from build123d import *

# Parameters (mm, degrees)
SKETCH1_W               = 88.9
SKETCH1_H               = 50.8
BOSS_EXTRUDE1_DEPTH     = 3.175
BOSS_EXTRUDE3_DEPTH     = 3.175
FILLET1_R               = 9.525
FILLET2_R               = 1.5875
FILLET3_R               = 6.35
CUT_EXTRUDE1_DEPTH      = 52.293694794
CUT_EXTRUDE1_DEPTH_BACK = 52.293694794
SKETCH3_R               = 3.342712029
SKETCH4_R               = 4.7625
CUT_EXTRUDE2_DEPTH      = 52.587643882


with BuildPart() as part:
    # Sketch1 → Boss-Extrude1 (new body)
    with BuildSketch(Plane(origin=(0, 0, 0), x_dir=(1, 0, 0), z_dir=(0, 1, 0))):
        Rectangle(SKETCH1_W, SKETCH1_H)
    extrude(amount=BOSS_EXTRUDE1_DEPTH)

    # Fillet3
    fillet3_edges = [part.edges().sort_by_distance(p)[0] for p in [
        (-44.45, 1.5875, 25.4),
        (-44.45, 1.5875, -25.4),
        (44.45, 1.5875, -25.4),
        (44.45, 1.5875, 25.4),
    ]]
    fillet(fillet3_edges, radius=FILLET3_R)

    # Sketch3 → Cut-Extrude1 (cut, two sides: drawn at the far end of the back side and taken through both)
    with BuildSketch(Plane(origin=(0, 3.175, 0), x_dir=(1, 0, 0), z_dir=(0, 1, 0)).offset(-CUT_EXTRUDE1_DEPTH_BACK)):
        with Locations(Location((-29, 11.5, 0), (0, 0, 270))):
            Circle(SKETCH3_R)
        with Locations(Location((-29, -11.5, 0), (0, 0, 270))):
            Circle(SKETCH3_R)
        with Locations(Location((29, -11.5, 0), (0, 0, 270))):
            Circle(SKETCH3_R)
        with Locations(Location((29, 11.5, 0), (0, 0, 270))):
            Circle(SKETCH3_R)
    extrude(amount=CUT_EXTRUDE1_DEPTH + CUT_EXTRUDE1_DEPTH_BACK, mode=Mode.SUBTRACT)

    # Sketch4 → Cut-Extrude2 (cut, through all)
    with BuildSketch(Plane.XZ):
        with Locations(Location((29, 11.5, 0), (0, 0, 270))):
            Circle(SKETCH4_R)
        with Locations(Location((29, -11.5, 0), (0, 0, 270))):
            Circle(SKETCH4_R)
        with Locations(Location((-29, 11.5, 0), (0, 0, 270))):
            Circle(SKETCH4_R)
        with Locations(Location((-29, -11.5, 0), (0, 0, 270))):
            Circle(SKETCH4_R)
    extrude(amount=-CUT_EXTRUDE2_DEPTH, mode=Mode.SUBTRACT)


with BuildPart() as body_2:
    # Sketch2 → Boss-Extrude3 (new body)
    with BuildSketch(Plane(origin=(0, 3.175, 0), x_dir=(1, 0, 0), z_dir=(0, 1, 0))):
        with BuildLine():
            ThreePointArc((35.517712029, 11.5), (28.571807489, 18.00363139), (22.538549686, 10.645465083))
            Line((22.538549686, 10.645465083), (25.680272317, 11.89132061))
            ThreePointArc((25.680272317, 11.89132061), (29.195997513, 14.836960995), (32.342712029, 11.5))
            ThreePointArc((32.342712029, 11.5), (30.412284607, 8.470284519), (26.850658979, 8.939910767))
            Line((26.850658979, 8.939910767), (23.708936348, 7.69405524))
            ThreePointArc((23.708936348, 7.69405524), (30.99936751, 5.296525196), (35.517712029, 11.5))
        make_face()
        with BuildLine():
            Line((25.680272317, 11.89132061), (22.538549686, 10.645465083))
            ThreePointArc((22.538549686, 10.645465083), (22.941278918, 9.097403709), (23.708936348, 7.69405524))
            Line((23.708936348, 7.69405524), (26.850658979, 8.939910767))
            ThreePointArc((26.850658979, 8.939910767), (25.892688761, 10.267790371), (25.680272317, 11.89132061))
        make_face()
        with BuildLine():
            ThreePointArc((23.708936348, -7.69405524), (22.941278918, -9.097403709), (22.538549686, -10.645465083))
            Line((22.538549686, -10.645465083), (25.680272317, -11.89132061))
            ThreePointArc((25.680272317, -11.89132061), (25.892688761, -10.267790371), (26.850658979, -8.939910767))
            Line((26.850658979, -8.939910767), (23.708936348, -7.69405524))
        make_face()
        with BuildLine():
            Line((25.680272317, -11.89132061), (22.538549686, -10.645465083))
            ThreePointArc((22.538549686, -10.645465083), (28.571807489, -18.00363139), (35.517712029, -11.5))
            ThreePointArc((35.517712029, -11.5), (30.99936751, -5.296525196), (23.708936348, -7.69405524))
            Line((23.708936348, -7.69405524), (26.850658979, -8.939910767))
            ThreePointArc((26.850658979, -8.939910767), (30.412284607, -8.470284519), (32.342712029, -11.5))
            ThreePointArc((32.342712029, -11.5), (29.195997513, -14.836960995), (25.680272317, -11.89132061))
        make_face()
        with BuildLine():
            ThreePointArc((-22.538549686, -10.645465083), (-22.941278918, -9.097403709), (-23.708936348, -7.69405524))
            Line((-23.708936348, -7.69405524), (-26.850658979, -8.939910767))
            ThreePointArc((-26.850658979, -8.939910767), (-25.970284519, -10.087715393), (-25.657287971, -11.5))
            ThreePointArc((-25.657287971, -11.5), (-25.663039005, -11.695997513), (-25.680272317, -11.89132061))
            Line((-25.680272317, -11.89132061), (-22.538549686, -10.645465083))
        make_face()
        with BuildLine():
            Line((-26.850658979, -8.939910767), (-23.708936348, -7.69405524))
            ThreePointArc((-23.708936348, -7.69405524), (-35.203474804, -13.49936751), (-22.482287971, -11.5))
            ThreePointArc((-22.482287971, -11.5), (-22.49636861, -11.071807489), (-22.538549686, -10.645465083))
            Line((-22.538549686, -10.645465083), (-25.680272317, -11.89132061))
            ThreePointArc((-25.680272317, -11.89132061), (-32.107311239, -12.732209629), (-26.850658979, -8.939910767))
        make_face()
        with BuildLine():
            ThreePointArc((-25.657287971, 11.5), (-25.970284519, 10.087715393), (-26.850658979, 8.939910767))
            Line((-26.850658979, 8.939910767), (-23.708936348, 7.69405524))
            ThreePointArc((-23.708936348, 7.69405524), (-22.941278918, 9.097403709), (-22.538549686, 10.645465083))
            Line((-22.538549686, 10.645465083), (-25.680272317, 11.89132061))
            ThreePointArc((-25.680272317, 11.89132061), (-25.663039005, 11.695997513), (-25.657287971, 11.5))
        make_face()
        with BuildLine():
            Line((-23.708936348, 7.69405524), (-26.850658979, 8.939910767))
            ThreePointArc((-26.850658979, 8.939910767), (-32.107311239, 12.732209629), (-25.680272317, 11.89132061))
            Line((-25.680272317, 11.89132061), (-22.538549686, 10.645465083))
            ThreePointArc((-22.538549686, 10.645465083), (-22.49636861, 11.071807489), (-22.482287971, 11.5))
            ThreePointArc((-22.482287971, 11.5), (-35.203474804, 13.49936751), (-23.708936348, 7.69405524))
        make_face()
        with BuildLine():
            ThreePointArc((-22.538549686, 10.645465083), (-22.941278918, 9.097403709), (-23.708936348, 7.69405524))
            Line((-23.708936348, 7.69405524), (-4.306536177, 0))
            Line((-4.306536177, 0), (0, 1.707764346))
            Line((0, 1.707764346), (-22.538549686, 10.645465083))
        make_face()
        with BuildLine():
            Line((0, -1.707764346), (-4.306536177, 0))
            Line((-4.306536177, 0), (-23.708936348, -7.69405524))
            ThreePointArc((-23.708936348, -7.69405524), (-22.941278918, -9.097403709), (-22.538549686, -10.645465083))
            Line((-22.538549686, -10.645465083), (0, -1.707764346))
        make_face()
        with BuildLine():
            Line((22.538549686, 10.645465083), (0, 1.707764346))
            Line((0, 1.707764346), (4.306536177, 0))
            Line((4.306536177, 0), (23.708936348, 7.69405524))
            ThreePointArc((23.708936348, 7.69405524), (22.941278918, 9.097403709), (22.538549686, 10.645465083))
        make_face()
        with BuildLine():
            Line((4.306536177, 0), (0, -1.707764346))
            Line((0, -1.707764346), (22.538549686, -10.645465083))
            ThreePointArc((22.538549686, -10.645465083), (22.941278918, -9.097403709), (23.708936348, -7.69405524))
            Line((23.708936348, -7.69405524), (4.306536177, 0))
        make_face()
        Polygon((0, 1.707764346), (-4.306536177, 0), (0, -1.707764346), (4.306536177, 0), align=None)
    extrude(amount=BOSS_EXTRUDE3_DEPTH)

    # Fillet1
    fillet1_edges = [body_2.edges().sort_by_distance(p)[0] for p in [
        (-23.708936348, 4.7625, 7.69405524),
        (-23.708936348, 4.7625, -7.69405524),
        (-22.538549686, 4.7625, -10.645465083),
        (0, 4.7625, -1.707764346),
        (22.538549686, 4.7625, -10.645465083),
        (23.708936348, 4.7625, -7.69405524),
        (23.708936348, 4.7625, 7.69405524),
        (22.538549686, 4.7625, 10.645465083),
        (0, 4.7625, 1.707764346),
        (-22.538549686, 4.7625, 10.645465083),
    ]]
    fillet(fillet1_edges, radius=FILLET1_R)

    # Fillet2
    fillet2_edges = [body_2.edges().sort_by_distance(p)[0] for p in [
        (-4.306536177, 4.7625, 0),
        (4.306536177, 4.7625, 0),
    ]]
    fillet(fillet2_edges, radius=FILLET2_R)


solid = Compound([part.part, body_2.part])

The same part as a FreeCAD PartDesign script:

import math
import FreeCAD as App
import Part
import Sketcher
Q = App.Units.Quantity


def edges_at(feature, points):
    """Names of the edges that pass closest to the given points."""
    edges = feature.Shape.Edges
    near = lambda p: min(range(len(edges)), key=lambda i: edges[i].distToShape(Part.Vertex(*p))[0])
    return sorted({f"Edge{near(p) + 1}" for p in points})

doc = App.newDocument("Part")
body = doc.addObject("PartDesign::Body", "Body")

sketch1 = body.newObject("Sketcher::SketchObject", "Sketch")
sketch1.AttachmentSupport = (doc.getObject("XZ_Plane"), [""])
sketch1.MapMode = "FlatFace"
sketch1.addGeometry([
    Part.LineSegment(App.Vector(-44.45, -25.4, 0), App.Vector(-44.45, 25.4, 0)),
    Part.LineSegment(App.Vector(-44.45, 25.4, 0), App.Vector(44.45, 25.4, 0)),
    Part.LineSegment(App.Vector(44.45, 25.4, 0), App.Vector(44.45, -25.4, 0)),
    Part.LineSegment(App.Vector(44.45, -25.4, 0), App.Vector(-44.45, -25.4, 0)),
], False)
sketch1.addConstraint([
    Sketcher.Constraint("Coincident", 0, 2, 1, 1),
    Sketcher.Constraint("Coincident", 1, 2, 2, 1),
    Sketcher.Constraint("Coincident", 2, 2, 3, 1),
    Sketcher.Constraint("Coincident", 3, 2, 0, 1),
    Sketcher.Constraint("Vertical", 0),
    Sketcher.Constraint("Horizontal", 1),
    Sketcher.Constraint("Vertical", 2),
    Sketcher.Constraint("Horizontal", 3),
    Sketcher.Constraint("Symmetric", 0, 2, 2, 2, -1, 1),
    Sketcher.Constraint("DistanceY", 0, 1, 0, 2, Q("2 in")),
    Sketcher.Constraint("DistanceX", 1, 1, 1, 2, Q("3.5 in")),
])
pad1 = body.newObject("PartDesign::Pad", "Pad")
pad1.Profile = sketch1
pad1.Length = Q("0.125 in")
pad1.Reversed = True
doc.recompute()

fillet = body.newObject("PartDesign::Fillet", "Fillet")
fillet.Base = (pad1, edges_at(pad1, [
    (-44.45, 1.587, 25.4),
    (-44.45, 1.587, -25.4),
    (44.45, 1.587, -25.4),
    (44.45, 1.587, 25.4),
]))
fillet.Radius = Q("0.25 in")

sketch2 = body.newObject("Sketcher::SketchObject", "Sketch001")
sketch2.AttachmentSupport = (doc.getObject("XZ_Plane"), [""])
sketch2.MapMode = "FlatFace"
sketch2.AttachmentOffset = App.Placement(App.Vector(0, 0, -0.125 * 25.4), App.Rotation())
sketch2.addGeometry([
    Part.Circle(App.Vector(-29, -11.5, 0), App.Vector(0, 0, 1), 3.342712),
    Part.Circle(App.Vector(-29, 11.5, 0), App.Vector(0, 0, 1), 3.342712),
    Part.Circle(App.Vector(29, 11.5, 0), App.Vector(0, 0, 1), 3.342712),
    Part.Circle(App.Vector(29, -11.5, 0), App.Vector(0, 0, 1), 3.342712),
], False)
sketch2.addConstraint([
    Sketcher.Constraint("Equal", 0, 1),
    Sketcher.Constraint("Equal", 1, 2),
    Sketcher.Constraint("Equal", 2, 3),
    Sketcher.Constraint("Symmetric", 0, 3, 2, 3, -1, 1),
    Sketcher.Constraint("Symmetric", 1, 3, 3, 3, -1, 1),
    Sketcher.Constraint("Symmetric", 1, 3, 2, 3, -2),
    Sketcher.Constraint("Diameter", 0, Q("6.685424 mm")),
    Sketcher.Constraint("DistanceX", 0, 3, -1, 1, Q("29 mm")),
    Sketcher.Constraint("DistanceY", 0, 3, -1, 1, Q("11.5 mm")),
])
pocket1 = body.newObject("PartDesign::Pocket", "Pocket")
pocket1.Profile = sketch2
pocket1.Type = "ThroughAll"
pocket1.Midplane = True

sketch3 = body.newObject("Sketcher::SketchObject", "Sketch002")
sketch3.AttachmentSupport = (doc.getObject("XZ_Plane"), [""])
sketch3.MapMode = "FlatFace"
sketch3.addGeometry([
    Part.Circle(App.Vector(29, 11.5, 0), App.Vector(0, 0, 1), 4.7625),
    Part.Circle(App.Vector(29, -11.5, 0), App.Vector(0, 0, 1), 4.7625),
    Part.Circle(App.Vector(-29, 11.5, 0), App.Vector(0, 0, 1), 4.7625),
    Part.Circle(App.Vector(-29, -11.5, 0), App.Vector(0, 0, 1), 4.7625),
], False)
sketch3.addConstraint([
    Sketcher.Constraint("Equal", 0, 1),
    Sketcher.Constraint("Equal", 1, 2),
    Sketcher.Constraint("Equal", 2, 3),
    Sketcher.Constraint("Symmetric", 1, 3, 2, 3, -1, 1),
    Sketcher.Constraint("Symmetric", 0, 3, 3, 3, -1, 1),
    Sketcher.Constraint("Symmetric", 0, 3, 2, 3, -2),
    Sketcher.Constraint("Diameter", 0, Q("0.375 in")),
    Sketcher.Constraint("DistanceX", -1, 1, 0, 3, Q("29 mm")),
    Sketcher.Constraint("DistanceY", -1, 1, 0, 3, Q("11.5 mm")),
])
pocket2 = body.newObject("PartDesign::Pocket", "Pocket001")
pocket2.Profile = sketch3
pocket2.Type = "ThroughAll"
body2 = doc.addObject("PartDesign::Body", "Body001")

sketch4 = body2.newObject("Sketcher::SketchObject", "Sketch003")
sketch4.AttachmentSupport = (doc.getObject("XZ_Plane001"), [""])
sketch4.MapMode = "FlatFace"
sketch4.AttachmentOffset = App.Placement(App.Vector(0, 0, -0.125 * 25.4), App.Rotation())
sketch4.addGeometry([
    Part.ArcOfCircle(Part.Circle(App.Vector(29, -11.5, 0), App.Vector(0, 0, 1), 6.517712), math.radians(172.466281), math.radians(360)),
    Part.LineSegment(App.Vector(22.53855, -10.645465, 0), App.Vector(0, -1.707764, 0)),
    Part.LineSegment(App.Vector(0, -1.707764, 0), App.Vector(-22.53855, -10.645465, 0)),
    Part.ArcOfCircle(Part.Circle(App.Vector(-29, -11.5, 0), App.Vector(0, 0, 1), 6.517712), math.radians(0), math.radians(7.533719)),
    Part.ArcOfCircle(Part.Circle(App.Vector(-29, -11.5, 0), App.Vector(0, 0, 1), 6.517712), math.radians(35.728054), math.radians(360)),
    Part.LineSegment(App.Vector(-23.708936, -7.694055, 0), App.Vector(-4.306536, 0, 0)),
    Part.LineSegment(App.Vector(-4.306536, 0, 0), App.Vector(-23.708936, 7.694055, 0)),
    Part.ArcOfCircle(Part.Circle(App.Vector(-29, 11.5, 0), App.Vector(0, 0, 1), 6.517712), math.radians(0), math.radians(324.271946)),
    Part.ArcOfCircle(Part.Circle(App.Vector(-29, 11.5, 0), App.Vector(0, 0, 1), 6.517712), math.radians(-7.533719), math.radians(0)),
    Part.LineSegment(App.Vector(-22.53855, 10.645465, 0), App.Vector(0, 1.707764, 0)),
    Part.LineSegment(App.Vector(0, 1.707764, 0), App.Vector(22.53855, 10.645465, 0)),
    Part.ArcOfCircle(Part.Circle(App.Vector(29, 11.5, 0), App.Vector(0, 0, 1), 6.517712), math.radians(0), math.radians(187.533719)),
    Part.ArcOfCircle(Part.Circle(App.Vector(29, 11.5, 0), App.Vector(0, 0, 1), 6.517712), math.radians(-144.271946), math.radians(0)),
    Part.LineSegment(App.Vector(23.708936, 7.694055, 0), App.Vector(4.306536, 0, 0)),
    Part.LineSegment(App.Vector(4.306536, 0, 0), App.Vector(23.708936, -7.694055, 0)),
    Part.ArcOfCircle(Part.Circle(App.Vector(29, -11.5, 0), App.Vector(0, 0, 1), 6.517712), math.radians(0), math.radians(144.271946)),
    Part.ArcOfCircle(Part.Circle(App.Vector(29, -11.5, 0), App.Vector(0, 0, 1), 3.342712), math.radians(0), math.radians(130.015377)),
    Part.ArcOfCircle(Part.Circle(App.Vector(29, -11.5, 0), App.Vector(0, 0, 1), 3.342712), math.radians(130.015377), math.radians(186.722849)),
    Part.ArcOfCircle(Part.Circle(App.Vector(29, -11.5, 0), App.Vector(0, 0, 1), 3.342712), math.radians(-173.277151), math.radians(0)),
    Part.ArcOfCircle(Part.Circle(App.Vector(-29, -11.5, 0), App.Vector(0, 0, 1), 3.342712), math.radians(-6.722849), math.radians(0)),
    Part.ArcOfCircle(Part.Circle(App.Vector(-29, -11.5, 0), App.Vector(0, 0, 1), 3.342712), math.radians(0), math.radians(49.984623)),
    Part.ArcOfCircle(Part.Circle(App.Vector(-29, -11.5, 0), App.Vector(0, 0, 1), 3.342712), math.radians(49.984623), math.radians(353.277151)),
    Part.ArcOfCircle(Part.Circle(App.Vector(-29, 11.5, 0), App.Vector(0, 0, 1), 3.342712), math.radians(-49.984623), math.radians(0)),
    Part.ArcOfCircle(Part.Circle(App.Vector(-29, 11.5, 0), App.Vector(0, 0, 1), 3.342712), math.radians(0), math.radians(6.722849)),
    Part.ArcOfCircle(Part.Circle(App.Vector(-29, 11.5, 0), App.Vector(0, 0, 1), 3.342712), math.radians(6.722849), math.radians(310.015377)),
    Part.ArcOfCircle(Part.Circle(App.Vector(29, 11.5, 0), App.Vector(0, 0, 1), 3.342712), math.radians(-130.015377), math.radians(0)),
    Part.ArcOfCircle(Part.Circle(App.Vector(29, 11.5, 0), App.Vector(0, 0, 1), 3.342712), math.radians(0), math.radians(173.277151)),
    Part.ArcOfCircle(Part.Circle(App.Vector(29, 11.5, 0), App.Vector(0, 0, 1), 3.342712), math.radians(173.277151), math.radians(229.984623)),
], False)
sketch4.addConstraint([
    Sketcher.Constraint("Coincident", 0, 1, 1, 1),
    Sketcher.Constraint("Coincident", 1, 2, 2, 1),
    Sketcher.Constraint("Coincident", 2, 2, 3, 2),
    Sketcher.Constraint("Tangent", 3, 1, 4, 2),
    Sketcher.Constraint("Coincident", 4, 1, 5, 1),
    Sketcher.Constraint("Coincident", 5, 2, 6, 1),
    Sketcher.Constraint("Coincident", 6, 2, 7, 2),
    Sketcher.Constraint("Tangent", 7, 1, 8, 2),
    Sketcher.Constraint("Coincident", 8, 1, 9, 1),
    Sketcher.Constraint("Coincident", 9, 2, 10, 1),
    Sketcher.Constraint("Coincident", 10, 2, 11, 2),
    Sketcher.Constraint("Tangent", 11, 1, 12, 2),
    Sketcher.Constraint("Coincident", 12, 1, 13, 1),
    Sketcher.Constraint("Coincident", 13, 2, 14, 1),
    Sketcher.Constraint("Coincident", 14, 2, 15, 2),
    Sketcher.Constraint("Tangent", 15, 1, 0, 2),
    Sketcher.Constraint("Tangent", 16, 2, 17, 1),
    Sketcher.Constraint("Tangent", 17, 2, 18, 1),
    Sketcher.Constraint("Tangent", 18, 2, 16, 1),
    Sketcher.Constraint("Tangent", 19, 2, 20, 1),
    Sketcher.Constraint("Tangent", 20, 2, 21, 1),
    Sketcher.Constraint("Tangent", 21, 2, 19, 1),
    Sketcher.Constraint("Tangent", 22, 2, 23, 1),
    Sketcher.Constraint("Tangent", 23, 2, 24, 1),
    Sketcher.Constraint("Tangent", 24, 2, 22, 1),
    Sketcher.Constraint("Tangent", 25, 2, 26, 1),
    Sketcher.Constraint("Tangent", 26, 2, 27, 1),
    Sketcher.Constraint("Tangent", 27, 2, 25, 1),
    Sketcher.Constraint("Coincident", 16, 3, 0, 3),
    Sketcher.Constraint("Coincident", 19, 3, 3, 3),
    Sketcher.Constraint("Coincident", 22, 3, 7, 3),
    Sketcher.Constraint("Coincident", 25, 3, 11, 3),
    Sketcher.Constraint("Equal", 0, 3),
    Sketcher.Constraint("Equal", 3, 4),
    Sketcher.Constraint("Equal", 4, 7),
    Sketcher.Constraint("Equal", 7, 8),
    Sketcher.Constraint("Equal", 8, 11),
    Sketcher.Constraint("Equal", 11, 12),
    Sketcher.Constraint("Equal", 12, 15),
    Sketcher.Constraint("Equal", 18, 19),
    Sketcher.Constraint("Equal", 21, 22),
    Sketcher.Constraint("Equal", 24, 25),
    Sketcher.Constraint("Symmetric", 0, 3, 7, 3, -1, 1),
    Sketcher.Constraint("Symmetric", 3, 3, 11, 3, -1, 1),
    Sketcher.Constraint("Symmetric", 1, 2, 9, 2, -1, 1),
    Sketcher.Constraint("Symmetric", 5, 2, 13, 2, -1, 1),
    Sketcher.Constraint("Symmetric", 0, 3, 3, 3, -2),
    Sketcher.Constraint("PointOnObject", 1, 2, -2),
    Sketcher.Constraint("PointOnObject", 5, 2, -1),
    Sketcher.Constraint("Parallel", 2, 5),
    Sketcher.Constraint("Parallel", 1, 6),
    Sketcher.Constraint("Parallel", 6, 9),
    Sketcher.Constraint("Parallel", 5, 10),
    Sketcher.Constraint("Parallel", 10, 13),
    Sketcher.Constraint("Parallel", 9, 14),
    Sketcher.Constraint("Horizontal", 0, 1, 2, 2),
    Sketcher.Constraint("Horizontal", 21, 3, 3, 1),
    Sketcher.Constraint("Horizontal", 27, 3, 7, 1),
    Sketcher.Constraint("Horizontal", 7, 1, 11, 1),
    Sketcher.Constraint("Horizontal", 3, 1, 15, 1),
    Sketcher.Constraint("Horizontal", 15, 1, 18, 2),
    Sketcher.Constraint("Horizontal", 18, 2, 19, 2),
    Sketcher.Constraint("Horizontal", 16, 2, 20, 2),
    Sketcher.Constraint("Horizontal", 17, 2, 21, 2),
    Sketcher.Constraint("Horizontal", 11, 1, 22, 2),
    Sketcher.Constraint("Horizontal", 22, 2, 25, 2),
    Sketcher.Constraint("Horizontal", 23, 2, 26, 2),
    Sketcher.Constraint("Horizontal", 24, 2, 27, 2),
    Sketcher.Constraint("Vertical", 21, 2, 23, 2),
    Sketcher.Constraint("Vertical", 20, 2, 24, 2),
    Sketcher.Constraint("DistanceX", 18, 2, 15, 1, Q("0.125 in")),
    Sketcher.Constraint("Radius", 0, Q("6.517712 mm")),
    Sketcher.Constraint("DistanceX", -1, 1, 0, 3, Q("29 mm")),
    Sketcher.Constraint("DistanceY", 0, 3, -1, 1, Q("11.5 mm")),
    Sketcher.Constraint("DistanceY", 0, 1, 1, 2, Q("8.937701 mm")),
    Sketcher.Constraint("DistanceX", 4, 1, 5, 2, Q("19.4024 mm")),
    Sketcher.Constraint("Distance", 5, Q("20.872269 mm")),
    Sketcher.Constraint("DistanceX", -1, 1, 16, 2, Q("26.850659 mm")),
    Sketcher.Constraint("DistanceY", 17, 2, -1, 1, Q("11.891321 mm")),
])
pad2 = body2.newObject("PartDesign::Pad", "Pad001")
pad2.Profile = sketch4
pad2.Length = Q("0.125 in")
pad2.Reversed = True
doc.recompute()

fillet2 = body2.newObject("PartDesign::Fillet", "Fillet001")
fillet2.Base = (pad2, edges_at(pad2, [
    (-23.709, 4.763, 7.694),
    (-23.709, 4.763, -7.694),
    (-22.539, 4.763, -10.645),
    (0, 4.763, -1.708),
    (22.539, 4.763, -10.645),
    (23.709, 4.763, -7.694),
    (23.709, 4.763, 7.694),
    (22.539, 4.763, 10.645),
    (0, 4.763, 1.708),
    (-22.539, 4.763, 10.645),
]))
fillet2.Radius = Q("0.375 in")
doc.recompute()

fillet3 = body2.newObject("PartDesign::Fillet", "Fillet002")
fillet3.Base = (fillet2, edges_at(fillet2, [(-4.307, 4.763, 0), (4.307, 4.763, 0)]))
fillet3.Radius = Q("0.0625 in")

doc.recompute()
